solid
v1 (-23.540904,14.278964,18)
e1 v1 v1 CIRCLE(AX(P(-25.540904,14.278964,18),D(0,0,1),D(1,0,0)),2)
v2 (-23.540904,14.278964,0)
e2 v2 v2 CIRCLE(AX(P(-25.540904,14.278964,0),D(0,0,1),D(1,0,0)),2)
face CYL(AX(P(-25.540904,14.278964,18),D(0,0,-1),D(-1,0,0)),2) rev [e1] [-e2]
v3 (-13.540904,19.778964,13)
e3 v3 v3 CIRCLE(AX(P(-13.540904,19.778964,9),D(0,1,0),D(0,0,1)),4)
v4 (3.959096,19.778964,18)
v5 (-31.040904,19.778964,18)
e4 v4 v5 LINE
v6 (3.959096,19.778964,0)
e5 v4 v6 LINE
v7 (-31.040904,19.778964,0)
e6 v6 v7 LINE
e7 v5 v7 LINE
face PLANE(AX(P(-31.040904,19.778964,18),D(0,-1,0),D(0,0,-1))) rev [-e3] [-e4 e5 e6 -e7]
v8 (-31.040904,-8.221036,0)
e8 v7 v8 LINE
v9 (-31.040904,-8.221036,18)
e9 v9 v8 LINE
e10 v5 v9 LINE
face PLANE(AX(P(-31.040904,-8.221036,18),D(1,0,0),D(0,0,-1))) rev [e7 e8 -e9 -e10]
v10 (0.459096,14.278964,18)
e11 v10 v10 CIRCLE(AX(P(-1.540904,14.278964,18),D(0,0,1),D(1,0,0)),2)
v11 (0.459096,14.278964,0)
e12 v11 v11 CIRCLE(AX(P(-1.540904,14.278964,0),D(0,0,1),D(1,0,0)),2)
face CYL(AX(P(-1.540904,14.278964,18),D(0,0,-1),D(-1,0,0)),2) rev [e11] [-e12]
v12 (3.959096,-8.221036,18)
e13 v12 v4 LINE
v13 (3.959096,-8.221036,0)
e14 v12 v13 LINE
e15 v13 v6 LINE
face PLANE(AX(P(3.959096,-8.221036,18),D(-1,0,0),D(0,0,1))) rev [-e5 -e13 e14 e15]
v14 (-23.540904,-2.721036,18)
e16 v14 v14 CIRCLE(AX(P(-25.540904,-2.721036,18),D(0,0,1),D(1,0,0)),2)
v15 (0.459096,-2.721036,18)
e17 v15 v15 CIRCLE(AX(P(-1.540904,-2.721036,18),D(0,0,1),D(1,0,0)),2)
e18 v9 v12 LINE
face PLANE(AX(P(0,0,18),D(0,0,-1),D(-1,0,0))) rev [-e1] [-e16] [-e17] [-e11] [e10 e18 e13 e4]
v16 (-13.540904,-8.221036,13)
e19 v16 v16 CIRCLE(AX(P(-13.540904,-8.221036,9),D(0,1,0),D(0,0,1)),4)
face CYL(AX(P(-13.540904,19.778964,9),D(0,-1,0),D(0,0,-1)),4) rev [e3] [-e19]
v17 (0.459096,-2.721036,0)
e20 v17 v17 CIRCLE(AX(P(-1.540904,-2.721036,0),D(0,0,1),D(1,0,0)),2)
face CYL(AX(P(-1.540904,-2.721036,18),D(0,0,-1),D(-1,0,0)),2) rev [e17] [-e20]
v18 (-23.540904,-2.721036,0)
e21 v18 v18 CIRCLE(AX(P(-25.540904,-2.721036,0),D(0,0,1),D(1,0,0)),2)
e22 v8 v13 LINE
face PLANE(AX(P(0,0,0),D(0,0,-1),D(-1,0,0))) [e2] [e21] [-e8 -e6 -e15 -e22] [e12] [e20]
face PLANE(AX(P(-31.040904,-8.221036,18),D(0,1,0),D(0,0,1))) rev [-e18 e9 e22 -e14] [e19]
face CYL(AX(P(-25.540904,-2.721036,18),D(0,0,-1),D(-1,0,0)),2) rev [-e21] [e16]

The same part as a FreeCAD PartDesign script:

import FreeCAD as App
import Part
import Sketcher
Q = App.Units.Quantity

doc = App.newDocument("Part")
params = doc.addObject("Spreadsheet::Sheet", "Params")
for row, (alias, value) in enumerate([
    ("sketch1_diameter", "4 mm"),
    ("sketch1_width", "35 mm"),
    ("sketch1_height", "28 mm"),
    ("pad1_length", "18 mm"),
    ("sketch2_diameter", "8 mm"),
], start=1):
    params.set(f"A{row}", alias)
    params.set(f"B{row}", "=" + value)
    params.setAlias(f"B{row}", alias)

body = doc.addObject("PartDesign::Body", "Body")

# Sketch on XY plane
sketch1 = body.newObject("Sketcher::SketchObject", "Sketch")
sketch1.AttachmentSupport = (doc.getObject("XY_Plane"), [""])
sketch1.MapMode = "FlatFace"
sketch1.addGeometry([
    Part.LineSegment(App.Vector(-31, 19.8, 0), App.Vector(-31, -8.2, 0)),  # 0
    Part.LineSegment(App.Vector(-31, -8.2, 0), App.Vector(4, -8.2, 0)),  # 1
    Part.LineSegment(App.Vector(4, -8.2, 0), App.Vector(4, 19.8, 0)),  # 2
    Part.LineSegment(App.Vector(4, 19.8, 0), App.Vector(-31, 19.8, 0)),  # 3
    Part.Circle(App.Vector(-25.5, -2.7, 0), App.Vector(0, 0, 1), 2),  # 4
    Part.Circle(App.Vector(-1.5, -2.7, 0), App.Vector(0, 0, 1), 2),  # 5
    Part.Circle(App.Vector(-25.5, 14.3, 0), App.Vector(0, 0, 1), 2),  # 6
    Part.Circle(App.Vector(-1.5, 14.3, 0), App.Vector(0, 0, 1), 2),  # 7
], False)
sketch1.addConstraint([
    Sketcher.Constraint("Coincident", 0, 2, 1, 1),
    Sketcher.Constraint("Coincident", 1, 2, 2, 1),
    Sketcher.Constraint("Coincident", 2, 2, 3, 1),
    Sketcher.Constraint("Coincident", 3, 2, 0, 1),
    Sketcher.Constraint("Vertical", 0),
    Sketcher.Constraint("Horizontal", 1),
    Sketcher.Constraint("Vertical", 2),
    Sketcher.Constraint("Horizontal", 3),
    Sketcher.Constraint("Equal", 4, 5),
    Sketcher.Constraint("Equal", 5, 6),
    Sketcher.Constraint("Equal", 6, 7),
    Sketcher.Constraint("Horizontal", 4, 3, 5, 3),
    Sketcher.Constraint("Horizontal", 6, 3, 7, 3),
    Sketcher.Constraint("Vertical", 4, 3, 6, 3),
    Sketcher.Constraint("Vertical", 5, 3, 7, 3),
    Sketcher.Constraint("Diameter", 4, Q("4 mm")),
    Sketcher.Constraint("DistanceX", 1, 1, 1, 2, Q("35 mm")),
    Sketcher.Constraint("DistanceY", 0, 2, 0, 1, Q("28 mm")),
    Sketcher.Constraint("DistanceX", 4, 3, 5, 3, Q("24 mm")),
    Sketcher.Constraint("DistanceY", 4, 3, 6, 3, Q("17 mm")),
    Sketcher.Constraint("DistanceX", 0, 2, 4, 3, Q("5.5 mm")),
    Sketcher.Constraint("DistanceY", 0, 2, 4, 3, Q("5.5 mm")),
    Sketcher.Constraint("DistanceX", 4, 3, -1, 1, Q("25.540904 mm")),
    Sketcher.Constraint("DistanceY", 4, 3, -1, 1, Q("2.721036 mm")),
])
sketch1.setExpression("Constraints[15]", "Params.sketch1_diameter")
sketch1.setExpression("Constraints[16]", "Params.sketch1_width")
sketch1.setExpression("Constraints[17]", "Params.sketch1_height")
pad1 = body.newObject("PartDesign::Pad", "Pad")
pad1.Profile = sketch1
pad1.setExpression("Length", "Params.pad1_length")

# Sketch on XZ plane
sketch2 = body.newObject("Sketcher::SketchObject", "Sketch001")
sketch2.AttachmentSupport = (doc.getObject("XZ_Plane"), [""])
sketch2.MapMode = "FlatFace"
sketch2.AttachmentOffset = App.Placement(App.Vector(0, 0, 8.221036), App.Rotation())
sketch2.addGeometry(Part.Circle(App.Vector(-13.5, 9, 0), App.Vector(0, 0, 1), 4), False)
sketch2.addConstraint([
    Sketcher.Constraint("Diameter", 0, Q("8 mm")),
    Sketcher.Constraint("DistanceY", -1, 1, 0, 3, Q("9 mm")),
    Sketcher.Constraint("DistanceX", 0, 3, -1, 1, Q("13.540904 mm")),
])
sketch2.setExpression("Constraints[0]", "Params.sketch2_diameter")
pocket1 = body.newObject("PartDesign::Pocket", "Pocket")
pocket1.Profile = sketch2
pocket1.Type = "ThroughAll"

doc.recompute()
